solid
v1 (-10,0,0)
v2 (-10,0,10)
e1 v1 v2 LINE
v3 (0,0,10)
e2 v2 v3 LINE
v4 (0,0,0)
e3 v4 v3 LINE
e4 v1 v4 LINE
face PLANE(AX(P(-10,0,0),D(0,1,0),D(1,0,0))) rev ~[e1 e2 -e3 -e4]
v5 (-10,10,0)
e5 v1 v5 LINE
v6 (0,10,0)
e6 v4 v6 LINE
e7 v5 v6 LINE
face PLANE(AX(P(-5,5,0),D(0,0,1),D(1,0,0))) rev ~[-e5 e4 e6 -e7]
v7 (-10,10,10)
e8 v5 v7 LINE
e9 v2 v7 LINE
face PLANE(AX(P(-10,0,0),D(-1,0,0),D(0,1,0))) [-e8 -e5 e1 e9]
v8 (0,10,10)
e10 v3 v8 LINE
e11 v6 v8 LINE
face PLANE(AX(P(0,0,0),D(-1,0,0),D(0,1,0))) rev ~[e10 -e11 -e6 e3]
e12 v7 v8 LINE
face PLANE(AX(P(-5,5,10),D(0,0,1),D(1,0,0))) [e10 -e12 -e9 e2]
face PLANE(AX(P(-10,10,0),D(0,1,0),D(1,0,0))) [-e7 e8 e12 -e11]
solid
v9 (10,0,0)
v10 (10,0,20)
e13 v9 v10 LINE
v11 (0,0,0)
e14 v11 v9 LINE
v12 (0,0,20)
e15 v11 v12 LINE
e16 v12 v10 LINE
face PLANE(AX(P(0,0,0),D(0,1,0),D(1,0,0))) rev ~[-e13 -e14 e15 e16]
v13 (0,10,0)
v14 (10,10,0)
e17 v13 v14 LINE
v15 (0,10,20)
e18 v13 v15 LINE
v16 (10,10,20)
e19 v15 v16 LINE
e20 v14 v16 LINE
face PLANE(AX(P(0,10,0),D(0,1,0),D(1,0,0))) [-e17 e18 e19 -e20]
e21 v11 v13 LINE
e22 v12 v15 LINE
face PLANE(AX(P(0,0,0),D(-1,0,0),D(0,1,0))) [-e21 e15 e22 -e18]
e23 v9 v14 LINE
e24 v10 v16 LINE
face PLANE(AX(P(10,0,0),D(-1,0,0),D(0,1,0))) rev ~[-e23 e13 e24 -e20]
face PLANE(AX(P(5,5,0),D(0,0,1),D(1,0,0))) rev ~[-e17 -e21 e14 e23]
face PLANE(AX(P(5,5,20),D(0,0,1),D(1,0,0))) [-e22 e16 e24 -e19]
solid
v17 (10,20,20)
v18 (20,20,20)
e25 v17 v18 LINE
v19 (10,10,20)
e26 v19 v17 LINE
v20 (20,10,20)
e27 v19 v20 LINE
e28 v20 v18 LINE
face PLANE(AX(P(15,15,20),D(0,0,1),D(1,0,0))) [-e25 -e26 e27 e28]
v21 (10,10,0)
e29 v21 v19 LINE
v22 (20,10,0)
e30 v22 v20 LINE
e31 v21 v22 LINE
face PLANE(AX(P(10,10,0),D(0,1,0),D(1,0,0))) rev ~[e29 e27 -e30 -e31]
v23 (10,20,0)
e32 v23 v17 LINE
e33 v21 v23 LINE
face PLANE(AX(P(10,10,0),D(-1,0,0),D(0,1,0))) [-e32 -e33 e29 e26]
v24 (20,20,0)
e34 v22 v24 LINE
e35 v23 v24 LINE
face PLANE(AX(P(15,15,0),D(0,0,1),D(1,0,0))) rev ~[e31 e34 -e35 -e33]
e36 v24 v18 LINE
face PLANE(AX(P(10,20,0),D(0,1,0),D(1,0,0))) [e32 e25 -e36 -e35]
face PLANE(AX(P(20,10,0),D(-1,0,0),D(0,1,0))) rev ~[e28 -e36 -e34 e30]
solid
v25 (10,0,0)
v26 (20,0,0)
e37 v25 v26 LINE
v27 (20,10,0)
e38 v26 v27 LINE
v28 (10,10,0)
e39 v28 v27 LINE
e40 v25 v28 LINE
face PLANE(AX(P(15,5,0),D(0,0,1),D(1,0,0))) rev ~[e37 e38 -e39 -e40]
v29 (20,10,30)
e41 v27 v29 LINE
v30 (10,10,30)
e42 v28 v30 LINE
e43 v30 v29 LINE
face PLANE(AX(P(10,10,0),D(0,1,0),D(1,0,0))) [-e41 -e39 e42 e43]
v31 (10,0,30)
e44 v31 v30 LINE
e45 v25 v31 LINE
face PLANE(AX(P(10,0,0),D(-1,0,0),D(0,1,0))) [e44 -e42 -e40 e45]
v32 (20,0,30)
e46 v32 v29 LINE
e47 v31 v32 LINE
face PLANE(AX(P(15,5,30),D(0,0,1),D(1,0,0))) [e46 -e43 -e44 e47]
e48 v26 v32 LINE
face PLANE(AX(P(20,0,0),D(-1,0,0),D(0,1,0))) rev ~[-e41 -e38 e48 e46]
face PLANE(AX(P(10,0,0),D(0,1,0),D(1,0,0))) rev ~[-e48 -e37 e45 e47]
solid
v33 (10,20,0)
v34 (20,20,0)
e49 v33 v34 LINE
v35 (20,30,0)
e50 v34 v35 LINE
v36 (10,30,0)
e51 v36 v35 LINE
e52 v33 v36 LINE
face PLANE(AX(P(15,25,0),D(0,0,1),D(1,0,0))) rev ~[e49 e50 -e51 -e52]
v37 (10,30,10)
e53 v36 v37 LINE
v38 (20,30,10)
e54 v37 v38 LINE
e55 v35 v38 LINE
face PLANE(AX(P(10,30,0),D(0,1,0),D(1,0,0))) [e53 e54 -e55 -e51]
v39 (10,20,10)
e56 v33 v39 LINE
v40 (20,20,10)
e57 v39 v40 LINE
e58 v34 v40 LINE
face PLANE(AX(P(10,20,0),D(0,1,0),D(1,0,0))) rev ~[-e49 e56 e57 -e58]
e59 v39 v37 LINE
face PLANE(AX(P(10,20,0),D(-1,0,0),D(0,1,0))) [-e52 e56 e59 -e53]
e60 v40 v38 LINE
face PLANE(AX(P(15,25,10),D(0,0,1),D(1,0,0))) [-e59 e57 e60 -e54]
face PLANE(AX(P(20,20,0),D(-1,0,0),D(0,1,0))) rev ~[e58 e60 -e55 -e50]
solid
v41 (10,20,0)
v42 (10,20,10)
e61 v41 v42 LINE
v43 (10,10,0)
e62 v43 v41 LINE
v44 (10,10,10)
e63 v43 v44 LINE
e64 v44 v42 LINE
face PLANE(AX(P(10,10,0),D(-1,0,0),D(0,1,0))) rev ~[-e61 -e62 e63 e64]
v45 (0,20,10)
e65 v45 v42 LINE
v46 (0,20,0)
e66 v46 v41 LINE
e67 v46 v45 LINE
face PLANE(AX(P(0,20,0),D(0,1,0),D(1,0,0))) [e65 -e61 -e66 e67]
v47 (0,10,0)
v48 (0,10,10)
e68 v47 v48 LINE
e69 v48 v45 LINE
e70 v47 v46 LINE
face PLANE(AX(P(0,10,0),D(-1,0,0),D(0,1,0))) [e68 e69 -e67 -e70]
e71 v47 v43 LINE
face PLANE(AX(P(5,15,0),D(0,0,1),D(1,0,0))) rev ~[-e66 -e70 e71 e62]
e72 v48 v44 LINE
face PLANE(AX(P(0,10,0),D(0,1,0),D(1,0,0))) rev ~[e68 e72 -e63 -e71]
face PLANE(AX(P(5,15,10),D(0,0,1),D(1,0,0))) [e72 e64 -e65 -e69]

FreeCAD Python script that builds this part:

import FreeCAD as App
import Part
import Sketcher
Q = App.Units.Quantity

doc = App.newDocument("Part")
params = doc.addObject("Spreadsheet::Sheet", "Params")
for row, (alias, value) in enumerate([
    ("sketch1_width", "10 mm"),
    ("pad1_length", "10 mm"),
    ("sketch2_width", "10 mm"),
    ("pad2_length", "20 mm"),
    ("sketch3_width", "10 mm"),
    ("pad3_length", "30 mm"),
    ("sketch4_width", "10 mm"),
    ("pad4_length", "20 mm"),
    ("sketch5_width", "10 mm"),
    ("pad5_length", "10 mm"),
    ("sketch6_width", "10 mm"),
    ("pad6_length", "10 mm"),
], start=1):
    params.set(f"A{row}", alias)
    params.set(f"B{row}", "=" + value)
    params.setAlias(f"B{row}", alias)

body = doc.addObject("PartDesign::Body", "Body")

sketch1 = body.newObject("Sketcher::SketchObject", "Sketch")
sketch1.AttachmentSupport = (doc.getObject("XY_Plane"), [""])
sketch1.MapMode = "FlatFace"
sketch1.addGeometry([
    Part.LineSegment(App.Vector(-10, 10, 0), App.Vector(-10, 0, 0)),
    Part.LineSegment(App.Vector(-10, 0, 0), App.Vector(0, 0, 0)),
    Part.LineSegment(App.Vector(0, 0, 0), App.Vector(0, 10, 0)),
    Part.LineSegment(App.Vector(0, 10, 0), App.Vector(-10, 10, 0)),
], False)
sketch1.addConstraint([
    Sketcher.Constraint("Coincident", 0, 2, 1, 1),
    Sketcher.Constraint("Coincident", 1, 2, 2, 1),
    Sketcher.Constraint("Coincident", 2, 2, 3, 1),
    Sketcher.Constraint("Coincident", 3, 2, 0, 1),
    Sketcher.Constraint("Vertical", 0),
    Sketcher.Constraint("Horizontal", 1),
    Sketcher.Constraint("Vertical", 2),
    Sketcher.Constraint("Horizontal", 3),
    Sketcher.Constraint("Coincident", 1, 2, -1, 1),
    Sketcher.Constraint("Equal", 3, 0),
    Sketcher.Constraint("DistanceX", 1, 1, 1, 2, Q("10 mm")),
])
sketch1.setExpression("Constraints[10]", "Params.sketch1_width")
pad1 = body.newObject("PartDesign::Pad", "Pad")
pad1.Profile = sketch1
pad1.setExpression("Length", "Params.pad1_length")
body2 = doc.addObject("PartDesign::Body", "Body001")

sketch2 = body2.newObject("Sketcher::SketchObject", "Sketch001")
sketch2.AttachmentSupport = (doc.getObject("XY_Plane001"), [""])
sketch2.MapMode = "FlatFace"
sketch2.addGeometry([
    Part.LineSegment(App.Vector(10, 20, 0), App.Vector(10, 10, 0)),
    Part.LineSegment(App.Vector(10, 10, 0), App.Vector(20, 10, 0)),
    Part.LineSegment(App.Vector(20, 10, 0), App.Vector(20, 20, 0)),
    Part.LineSegment(App.Vector(20, 20, 0), App.Vector(10, 20, 0)),
], False)
sketch2.addConstraint([
    Sketcher.Constraint("Coincident", 0, 2, 1, 1),
    Sketcher.Constraint("Coincident", 1, 2, 2, 1),
    Sketcher.Constraint("Coincident", 2, 2, 3, 1),
    Sketcher.Constraint("Coincident", 3, 2, 0, 1),
    Sketcher.Constraint("Vertical", 0),
    Sketcher.Constraint("Horizontal", 1),
    Sketcher.Constraint("Vertical", 2),
    Sketcher.Constraint("Horizontal", 3),
    Sketcher.Constraint("Equal", 3, 0),
    Sketcher.Constraint("DistanceX", 1, 1, 1, 2, Q("10 mm")),
    Sketcher.Constraint("DistanceX", -1, 1, 0, 2, Q("10 mm")),
    Sketcher.Constraint("DistanceY", -1, 1, 0, 2, Q("10 mm")),
])
sketch2.setExpression("Constraints[9]", "Params.sketch2_width")
pad2 = body2.newObject("PartDesign::Pad", "Pad001")
pad2.Profile = sketch2
pad2.setExpression("Length", "Params.pad2_length")
body3 = doc.addObject("PartDesign::Body", "Body002")

sketch3 = body3.newObject("Sketcher::SketchObject", "Sketch002")
sketch3.AttachmentSupport = (doc.getObject("XY_Plane002"), [""])
sketch3.MapMode = "FlatFace"
sketch3.addGeometry([
    Part.LineSegment(App.Vector(10, 10, 0), App.Vector(10, 0, 0)),
    Part.LineSegment(App.Vector(10, 0, 0), App.Vector(20, 0, 0)),
    Part.LineSegment(App.Vector(20, 0, 0), App.Vector(20, 10, 0)),
    Part.LineSegment(App.Vector(20, 10, 0), App.Vector(10, 10, 0)),
], False)
sketch3.addConstraint([
    Sketcher.Constraint("Coincident", 0, 2, 1, 1),
    Sketcher.Constraint("Coincident", 1, 2, 2, 1),
    Sketcher.Constraint("Coincident", 2, 2, 3, 1),
    Sketcher.Constraint("Coincident", 3, 2, 0, 1),
    Sketcher.Constraint("Vertical", 0),
    Sketcher.Constraint("Horizontal", 1),
    Sketcher.Constraint("Vertical", 2),
    Sketcher.Constraint("Horizontal", 3),
    Sketcher.Constraint("PointOnObject", 0, 2, -1),
    Sketcher.Constraint("Equal", 3, 0),
    Sketcher.Constraint("DistanceX", 1, 1, 1, 2, Q("10 mm")),
    Sketcher.Constraint("DistanceX", -1, 1, 0, 2, Q("10 mm")),
])
sketch3.setExpression("Constraints[10]", "Params.sketch3_width")
pad3 = body3.newObject("PartDesign::Pad", "Pad002")
pad3.Profile = sketch3
pad3.setExpression("Length", "Params.pad3_length")
body4 = doc.addObject("PartDesign::Body", "Body003")

sketch4 = body4.newObject("Sketcher::SketchObject", "Sketch003")
sketch4.AttachmentSupport = (doc.getObject("XY_Plane003"), [""])
sketch4.MapMode = "FlatFace"
sketch4.addGeometry([
    Part.LineSegment(App.Vector(0, 10, 0), App.Vector(0, 0, 0)),
    Part.LineSegment(App.Vector(0, 0, 0), App.Vector(10, 0, 0)),
    Part.LineSegment(App.Vector(10, 0, 0), App.Vector(10, 10, 0)),
    Part.LineSegment(App.Vector(10, 10, 0), App.Vector(0, 10, 0)),
], False)
sketch4.addConstraint([
    Sketcher.Constraint("Coincident", 0, 2, 1, 1),
    Sketcher.Constraint("Coincident", 1, 2, 2, 1),
    Sketcher.Constraint("Coincident", 2, 2, 3, 1),
    Sketcher.Constraint("Coincident", 3, 2, 0, 1),
    Sketcher.Constraint("Vertical", 0),
    Sketcher.Constraint("Horizontal", 1),
    Sketcher.Constraint("Vertical", 2),
    Sketcher.Constraint("Horizontal", 3),
    Sketcher.Constraint("Coincident", 0, 2, -1, 1),
    Sketcher.Constraint("Equal", 3, 0),
    Sketcher.Constraint("DistanceX", 1, 1, 1, 2, Q("10 mm")),
])
sketch4.setExpression("Constraints[10]", "Params.sketch4_width")
pad4 = body4.newObject("PartDesign::Pad", "Pad003")
pad4.Profile = sketch4
pad4.setExpression("Length", "Params.pad4_length")
body5 = doc.addObject("PartDesign::Body", "Body004")

sketch5 = body5.newObject("Sketcher::SketchObject", "Sketch004")
sketch5.AttachmentSupport = (doc.getObject("XY_Plane004"), [""])
sketch5.MapMode = "FlatFace"
sketch5.addGeometry([
    Part.LineSegment(App.Vector(0, 20, 0), App.Vector(0, 10, 0)),
    Part.LineSegment(App.Vector(0, 10, 0), App.Vector(10, 10, 0)),
    Part.LineSegment(App.Vector(10, 10, 0), App.Vector(10, 20, 0)),
    Part.LineSegment(App.Vector(10, 20, 0), App.Vector(0, 20, 0)),
], False)
sketch5.addConstraint([
    Sketcher.Constraint("Coincident", 0, 2, 1, 1),
    Sketcher.Constraint("Coincident", 1, 2, 2, 1),
    Sketcher.Constraint("Coincident", 2, 2, 3, 1),
    Sketcher.Constraint("Coincident", 3, 2, 0, 1),
    Sketcher.Constraint("Vertical", 0),
    Sketcher.Constraint("Horizontal", 1),
    Sketcher.Constraint("Vertical", 2),
    Sketcher.Constraint("Horizontal", 3),
    Sketcher.Constraint("PointOnObject", 0, 2, -2),
    Sketcher.Constraint("Equal", 3, 0),
    Sketcher.Constraint("DistanceX", 1, 1, 1, 2, Q("10 mm")),
    Sketcher.Constraint("DistanceY", -1, 1, 0, 2, Q("10 mm")),
])
sketch5.setExpression("Constraints[10]", "Params.sketch5_width")
pad5 = body5.newObject("PartDesign::Pad", "Pad004")
pad5.Profile = sketch5
pad5.setExpression("Length", "Params.pad5_length")
body6 = doc.addObject("PartDesign::Body", "Body005")

sketch6 = body6.newObject("Sketcher::SketchObject", "Sketch005")
sketch6.AttachmentSupport = (doc.getObject("XY_Plane005"), [""])
sketch6.MapMode = "FlatFace"
sketch6.addGeometry([
    Part.LineSegment(App.Vector(10, 30, 0), App.Vector(10, 20, 0)),
    Part.LineSegment(App.Vector(10, 20, 0), App.Vector(20, 20, 0)),
    Part.LineSegment(App.Vector(20, 20, 0), App.Vector(20, 30, 0)),
    Part.LineSegment(App.Vector(20, 30, 0), App.Vector(10, 30, 0)),
], False)
sketch6.addConstraint([
    Sketcher.Constraint("Coincident", 0, 2, 1, 1),
    Sketcher.Constraint("Coincident", 1, 2, 2, 1),
    Sketcher.Constraint("Coincident", 2, 2, 3, 1),
    Sketcher.Constraint("Coincident", 3, 2, 0, 1),
    Sketcher.Constraint("Vertical", 0),
    Sketcher.Constraint("Horizontal", 1),
    Sketcher.Constraint("Vertical", 2),
    Sketcher.Constraint("Horizontal", 3),
    Sketcher.Constraint("Equal", 3, 0),
    Sketcher.Constraint("DistanceX", 1, 1, 1, 2, Q("10 mm")),
    Sketcher.Constraint("DistanceX", -1, 1, 0, 2, Q("10 mm")),
    Sketcher.Constraint("DistanceY", -1, 1, 0, 2, Q("20 mm")),
])
sketch6.setExpression("Constraints[9]", "Params.sketch6_width")
pad6 = body6.newObject("PartDesign::Pad", "Pad005")
pad6.Profile = sketch6
pad6.setExpression("Length", "Params.pad6_length")

doc.recompute()
